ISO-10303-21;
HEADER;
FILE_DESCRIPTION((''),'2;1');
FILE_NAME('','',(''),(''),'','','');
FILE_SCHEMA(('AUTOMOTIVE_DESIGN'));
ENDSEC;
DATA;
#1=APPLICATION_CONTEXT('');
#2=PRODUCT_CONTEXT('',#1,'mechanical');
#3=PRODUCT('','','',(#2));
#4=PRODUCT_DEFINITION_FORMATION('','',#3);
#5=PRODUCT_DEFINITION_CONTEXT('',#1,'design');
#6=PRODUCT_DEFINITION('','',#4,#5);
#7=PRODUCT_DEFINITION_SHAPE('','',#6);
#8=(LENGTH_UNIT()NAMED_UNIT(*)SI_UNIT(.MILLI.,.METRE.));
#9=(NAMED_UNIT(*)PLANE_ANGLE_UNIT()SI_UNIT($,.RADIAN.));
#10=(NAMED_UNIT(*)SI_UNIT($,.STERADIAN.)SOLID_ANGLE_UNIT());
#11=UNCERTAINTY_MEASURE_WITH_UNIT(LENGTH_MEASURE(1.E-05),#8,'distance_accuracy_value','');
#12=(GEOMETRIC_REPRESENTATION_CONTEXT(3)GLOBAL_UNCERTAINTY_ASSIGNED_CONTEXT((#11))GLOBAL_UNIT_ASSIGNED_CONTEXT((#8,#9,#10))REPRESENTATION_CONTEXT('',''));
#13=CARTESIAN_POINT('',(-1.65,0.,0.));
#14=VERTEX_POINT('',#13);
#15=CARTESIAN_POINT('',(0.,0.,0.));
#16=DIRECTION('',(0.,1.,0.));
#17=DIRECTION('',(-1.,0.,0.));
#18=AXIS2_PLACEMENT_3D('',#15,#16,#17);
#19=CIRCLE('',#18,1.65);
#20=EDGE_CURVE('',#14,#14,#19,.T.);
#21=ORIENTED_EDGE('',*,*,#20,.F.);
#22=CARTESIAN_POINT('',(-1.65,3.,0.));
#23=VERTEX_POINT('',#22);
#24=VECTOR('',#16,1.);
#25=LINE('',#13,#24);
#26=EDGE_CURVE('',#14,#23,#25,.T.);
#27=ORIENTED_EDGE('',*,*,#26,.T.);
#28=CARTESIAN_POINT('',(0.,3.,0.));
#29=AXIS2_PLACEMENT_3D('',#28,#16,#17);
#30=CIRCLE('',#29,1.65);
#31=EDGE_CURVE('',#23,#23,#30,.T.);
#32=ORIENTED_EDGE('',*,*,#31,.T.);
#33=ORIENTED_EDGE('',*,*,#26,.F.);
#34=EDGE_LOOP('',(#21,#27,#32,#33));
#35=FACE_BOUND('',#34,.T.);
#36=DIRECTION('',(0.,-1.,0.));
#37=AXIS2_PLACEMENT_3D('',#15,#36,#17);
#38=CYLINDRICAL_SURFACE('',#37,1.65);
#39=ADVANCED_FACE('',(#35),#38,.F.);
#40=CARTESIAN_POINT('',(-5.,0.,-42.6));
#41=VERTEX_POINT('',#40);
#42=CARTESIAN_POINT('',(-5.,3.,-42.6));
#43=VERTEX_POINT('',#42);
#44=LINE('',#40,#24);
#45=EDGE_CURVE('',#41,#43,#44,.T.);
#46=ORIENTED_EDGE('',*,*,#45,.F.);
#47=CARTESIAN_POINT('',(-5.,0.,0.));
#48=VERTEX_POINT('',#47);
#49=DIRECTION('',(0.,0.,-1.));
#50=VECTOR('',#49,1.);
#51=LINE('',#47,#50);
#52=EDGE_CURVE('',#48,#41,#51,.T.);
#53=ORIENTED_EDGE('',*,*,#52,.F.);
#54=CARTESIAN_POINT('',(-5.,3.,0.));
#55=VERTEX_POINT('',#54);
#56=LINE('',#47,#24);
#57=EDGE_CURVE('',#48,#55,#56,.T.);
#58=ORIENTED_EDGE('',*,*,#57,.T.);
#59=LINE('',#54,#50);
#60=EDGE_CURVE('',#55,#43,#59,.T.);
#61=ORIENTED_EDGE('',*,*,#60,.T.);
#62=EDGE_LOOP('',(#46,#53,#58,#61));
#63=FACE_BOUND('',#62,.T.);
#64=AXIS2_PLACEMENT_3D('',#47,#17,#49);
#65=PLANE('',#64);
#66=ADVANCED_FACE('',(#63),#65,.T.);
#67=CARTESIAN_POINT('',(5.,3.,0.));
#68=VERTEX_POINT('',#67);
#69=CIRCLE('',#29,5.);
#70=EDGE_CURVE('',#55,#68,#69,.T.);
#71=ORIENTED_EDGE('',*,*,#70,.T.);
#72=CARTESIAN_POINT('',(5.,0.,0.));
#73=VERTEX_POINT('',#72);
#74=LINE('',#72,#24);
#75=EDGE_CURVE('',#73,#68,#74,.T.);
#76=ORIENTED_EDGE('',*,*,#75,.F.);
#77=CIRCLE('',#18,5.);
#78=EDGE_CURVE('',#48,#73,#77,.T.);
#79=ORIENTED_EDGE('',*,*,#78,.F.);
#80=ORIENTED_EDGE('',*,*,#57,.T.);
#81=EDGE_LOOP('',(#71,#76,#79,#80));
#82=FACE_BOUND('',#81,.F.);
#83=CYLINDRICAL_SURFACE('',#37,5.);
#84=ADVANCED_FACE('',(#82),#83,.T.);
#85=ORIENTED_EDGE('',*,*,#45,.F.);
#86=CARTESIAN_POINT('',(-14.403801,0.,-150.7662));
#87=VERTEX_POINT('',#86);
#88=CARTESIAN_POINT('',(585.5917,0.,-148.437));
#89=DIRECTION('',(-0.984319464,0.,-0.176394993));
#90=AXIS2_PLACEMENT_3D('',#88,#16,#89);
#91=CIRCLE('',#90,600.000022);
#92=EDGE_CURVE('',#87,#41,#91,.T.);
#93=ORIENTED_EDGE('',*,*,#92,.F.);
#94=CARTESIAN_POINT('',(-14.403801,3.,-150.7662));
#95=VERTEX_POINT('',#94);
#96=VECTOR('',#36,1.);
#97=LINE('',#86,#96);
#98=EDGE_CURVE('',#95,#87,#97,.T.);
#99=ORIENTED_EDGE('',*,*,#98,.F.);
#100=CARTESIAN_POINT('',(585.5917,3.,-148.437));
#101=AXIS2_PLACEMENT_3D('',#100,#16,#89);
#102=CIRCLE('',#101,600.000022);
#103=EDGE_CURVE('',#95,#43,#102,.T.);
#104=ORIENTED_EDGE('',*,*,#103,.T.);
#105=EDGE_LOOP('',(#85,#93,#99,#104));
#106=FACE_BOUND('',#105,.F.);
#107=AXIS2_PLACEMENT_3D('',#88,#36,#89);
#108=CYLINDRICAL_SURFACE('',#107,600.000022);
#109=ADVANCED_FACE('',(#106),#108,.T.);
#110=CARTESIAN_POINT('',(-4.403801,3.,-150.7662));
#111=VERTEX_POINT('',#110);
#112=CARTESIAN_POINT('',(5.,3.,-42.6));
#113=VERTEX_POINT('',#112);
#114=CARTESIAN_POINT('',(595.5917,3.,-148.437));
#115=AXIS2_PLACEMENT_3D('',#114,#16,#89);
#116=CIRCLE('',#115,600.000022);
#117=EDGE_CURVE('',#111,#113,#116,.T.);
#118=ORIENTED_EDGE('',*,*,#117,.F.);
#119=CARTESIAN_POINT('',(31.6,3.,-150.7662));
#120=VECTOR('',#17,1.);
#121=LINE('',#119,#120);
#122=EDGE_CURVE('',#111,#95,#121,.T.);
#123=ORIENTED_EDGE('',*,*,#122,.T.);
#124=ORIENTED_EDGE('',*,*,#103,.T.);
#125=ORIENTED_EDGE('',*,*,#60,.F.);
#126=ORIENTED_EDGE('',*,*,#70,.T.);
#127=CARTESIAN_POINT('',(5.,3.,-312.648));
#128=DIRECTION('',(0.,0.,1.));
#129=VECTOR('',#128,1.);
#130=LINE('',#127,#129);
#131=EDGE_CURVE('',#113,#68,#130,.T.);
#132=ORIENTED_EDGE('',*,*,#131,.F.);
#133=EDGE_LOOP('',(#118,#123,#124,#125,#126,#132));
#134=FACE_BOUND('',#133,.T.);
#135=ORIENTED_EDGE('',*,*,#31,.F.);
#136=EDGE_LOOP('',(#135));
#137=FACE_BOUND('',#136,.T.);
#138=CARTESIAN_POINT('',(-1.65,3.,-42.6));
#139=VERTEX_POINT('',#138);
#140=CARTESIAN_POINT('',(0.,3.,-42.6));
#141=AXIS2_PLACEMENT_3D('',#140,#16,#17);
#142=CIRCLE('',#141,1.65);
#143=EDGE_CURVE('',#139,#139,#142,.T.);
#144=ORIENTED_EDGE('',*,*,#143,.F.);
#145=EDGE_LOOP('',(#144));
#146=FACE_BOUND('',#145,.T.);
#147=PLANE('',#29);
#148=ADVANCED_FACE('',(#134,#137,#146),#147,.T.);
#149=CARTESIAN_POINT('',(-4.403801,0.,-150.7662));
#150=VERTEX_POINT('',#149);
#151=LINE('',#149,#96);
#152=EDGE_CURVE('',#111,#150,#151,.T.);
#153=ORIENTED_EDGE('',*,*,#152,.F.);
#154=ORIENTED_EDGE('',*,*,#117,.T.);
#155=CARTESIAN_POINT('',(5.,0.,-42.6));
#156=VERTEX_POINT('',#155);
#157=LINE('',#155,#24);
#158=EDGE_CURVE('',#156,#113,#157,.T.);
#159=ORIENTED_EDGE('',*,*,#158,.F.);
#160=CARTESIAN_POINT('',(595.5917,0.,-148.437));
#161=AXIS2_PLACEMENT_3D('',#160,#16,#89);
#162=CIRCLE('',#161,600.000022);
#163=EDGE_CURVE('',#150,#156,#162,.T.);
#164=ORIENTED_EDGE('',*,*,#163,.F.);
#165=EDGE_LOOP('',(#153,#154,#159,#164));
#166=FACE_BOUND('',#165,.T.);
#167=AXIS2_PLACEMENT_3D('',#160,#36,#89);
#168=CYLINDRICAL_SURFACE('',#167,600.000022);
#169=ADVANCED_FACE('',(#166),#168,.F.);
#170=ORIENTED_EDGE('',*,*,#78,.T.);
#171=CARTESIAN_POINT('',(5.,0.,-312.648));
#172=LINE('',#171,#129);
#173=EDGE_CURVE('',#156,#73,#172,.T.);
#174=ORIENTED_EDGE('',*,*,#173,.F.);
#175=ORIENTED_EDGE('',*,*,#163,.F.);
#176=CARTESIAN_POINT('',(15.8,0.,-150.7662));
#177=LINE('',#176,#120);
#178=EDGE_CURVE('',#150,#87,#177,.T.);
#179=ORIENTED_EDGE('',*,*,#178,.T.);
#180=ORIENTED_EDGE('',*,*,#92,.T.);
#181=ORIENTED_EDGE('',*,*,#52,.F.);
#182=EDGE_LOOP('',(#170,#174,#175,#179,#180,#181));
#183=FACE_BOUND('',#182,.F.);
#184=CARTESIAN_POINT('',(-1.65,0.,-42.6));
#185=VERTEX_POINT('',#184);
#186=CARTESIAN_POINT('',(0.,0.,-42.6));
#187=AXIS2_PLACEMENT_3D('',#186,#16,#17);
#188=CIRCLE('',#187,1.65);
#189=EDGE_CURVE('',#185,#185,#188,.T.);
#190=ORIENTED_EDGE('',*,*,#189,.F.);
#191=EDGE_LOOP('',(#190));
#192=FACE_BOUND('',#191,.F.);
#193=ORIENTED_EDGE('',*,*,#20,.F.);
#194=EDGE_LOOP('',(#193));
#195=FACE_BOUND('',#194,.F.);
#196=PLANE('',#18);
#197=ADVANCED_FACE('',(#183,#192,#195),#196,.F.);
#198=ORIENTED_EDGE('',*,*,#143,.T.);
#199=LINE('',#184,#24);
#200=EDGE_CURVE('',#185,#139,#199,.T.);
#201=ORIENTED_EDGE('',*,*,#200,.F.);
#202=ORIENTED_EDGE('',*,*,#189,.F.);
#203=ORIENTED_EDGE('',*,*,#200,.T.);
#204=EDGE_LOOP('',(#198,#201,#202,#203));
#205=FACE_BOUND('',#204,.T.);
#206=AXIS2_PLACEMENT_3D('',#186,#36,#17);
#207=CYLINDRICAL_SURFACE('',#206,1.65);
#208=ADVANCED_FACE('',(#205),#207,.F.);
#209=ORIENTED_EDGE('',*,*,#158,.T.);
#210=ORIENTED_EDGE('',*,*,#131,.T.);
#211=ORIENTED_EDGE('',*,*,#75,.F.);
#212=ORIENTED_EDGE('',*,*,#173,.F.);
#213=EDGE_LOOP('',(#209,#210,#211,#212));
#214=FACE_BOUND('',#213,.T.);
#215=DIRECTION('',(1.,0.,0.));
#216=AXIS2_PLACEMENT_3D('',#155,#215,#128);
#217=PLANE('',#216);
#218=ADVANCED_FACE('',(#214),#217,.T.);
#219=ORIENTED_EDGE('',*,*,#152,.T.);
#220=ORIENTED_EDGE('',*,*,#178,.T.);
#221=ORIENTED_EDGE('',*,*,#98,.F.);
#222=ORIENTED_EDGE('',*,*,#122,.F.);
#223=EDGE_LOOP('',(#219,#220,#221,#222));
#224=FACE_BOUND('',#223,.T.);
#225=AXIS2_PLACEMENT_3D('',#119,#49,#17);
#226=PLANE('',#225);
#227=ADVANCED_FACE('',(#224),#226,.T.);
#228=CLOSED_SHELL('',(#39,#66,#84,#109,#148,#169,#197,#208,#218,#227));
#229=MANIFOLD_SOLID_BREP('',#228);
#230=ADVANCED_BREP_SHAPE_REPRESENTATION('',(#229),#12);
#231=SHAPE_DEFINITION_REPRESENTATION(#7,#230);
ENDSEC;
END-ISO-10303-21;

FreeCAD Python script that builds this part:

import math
import FreeCAD as App
import Part
import Sketcher

doc = App.newDocument("Part")
params = doc.addObject("Spreadsheet::Sheet", "Params")
for row, (alias, value) in enumerate([
    ("sketch1_radius", "5 mm"),
    ("sketch1_radius2", "600 mm"),
    ("sketch1_diameter", "3.3 mm"),
    ("sketch1_height", "42.6 mm"),
    ("pad1_length", "3 mm"),
    ("pocket1_length", "10 mm"),
], start=1):
    params.set(f"A{row}", alias)
    params.set(f"B{row}", "=" + value)
    params.setAlias(f"B{row}", alias)

body = doc.addObject("PartDesign::Body", "Body")

# Sketch on XZ plane
sketch1 = body.newObject("Sketcher::SketchObject", "Sketch")
sketch1.AttachmentSupport = (doc.getObject("XZ_Plane"), [""])
sketch1.MapMode = "FlatFace"
sketch1.addGeometry([
    Part.LineSegment(App.Vector(-5, -42.6, 0), App.Vector(-5, 0, 0)),  # 0
    Part.ArcOfCircle(Part.Circle(App.Vector(0, 0, 0), App.Vector(0, 0, 1), 5), math.radians(0), math.radians(180)),  # 1
    Part.LineSegment(App.Vector(5, 0, 0), App.Vector(5, -42.6, 0)),  # 2
    Part.ArcOfCircle(Part.Circle(App.Vector(595.6, -148.4, 0), App.Vector(0, 0, 1), 600), math.radians(170), math.radians(190)),  # 3
    Part.LineSegment(App.Vector(5, -254.3, 0), App.Vector(5, -312.6, 0)),  # 4
    Part.ArcOfCircle(Part.Circle(App.Vector(0, -312.6, 0), App.Vector(0, 0, 1), 5), math.radians(180), math.radians(360)),  # 5
    Part.LineSegment(App.Vector(-5, -312.6, 0), App.Vector(-5, -254.3, 0)),  # 6
    Part.ArcOfCircle(Part.Circle(App.Vector(585.6, -148.4, 0), App.Vector(0, 0, 1), 600), math.radians(170), math.radians(190)),  # 7
    Part.Circle(App.Vector(0, -312.6, 0), App.Vector(0, 0, 1), 1.6),  # 8
    Part.Circle(App.Vector(0, -254.3, 0), App.Vector(0, 0, 1), 1.6),  # 9
    Part.Circle(App.Vector(0, -42.6, 0), App.Vector(0, 0, 1), 1.6),  # 10
    Part.Circle(App.Vector(0, 0, 0), App.Vector(0, 0, 1), 1.6),  # 11
], False)
sketch1.addConstraint([
    Sketcher.Constraint("Tangent", 0, 2, 1, 2),
    Sketcher.Constraint("Tangent", 1, 1, 2, 1),
    Sketcher.Constraint("Coincident", 2, 2, 3, 1),
    Sketcher.Constraint("Coincident", 3, 2, 4, 1),
    Sketcher.Constraint("Tangent", 4, 2, 5, 2),
    Sketcher.Constraint("Tangent", 5, 1, 6, 1),
    Sketcher.Constraint("Coincident", 6, 2, 7, 2),
    Sketcher.Constraint("Coincident", 7, 1, 0, 1),
    Sketcher.Constraint("Vertical", 0),
    Sketcher.Constraint("Vertical", 2),
    Sketcher.Constraint("Vertical", 4),
    Sketcher.Constraint("Vertical", 6),
    Sketcher.Constraint("Coincident", 1, 3, -1, 1),
    Sketcher.Constraint("Coincident", 11, 3, -1, 1),
    Sketcher.Constraint("Coincident", 8, 3, 5, 3),
    Sketcher.Constraint("Equal", 1, 5),
    Sketcher.Constraint("Equal", 3, 7),
    Sketcher.Constraint("Equal", 8, 9),
    Sketcher.Constraint("Equal", 9, 10),
    Sketcher.Constraint("Equal", 10, 11),
    Sketcher.Constraint("Symmetric", 3, 2, 6, 2, -2),
    Sketcher.Constraint("PointOnObject", 9, 3, -2),
    Sketcher.Constraint("PointOnObject", 10, 3, -2),
    Sketcher.Constraint("Horizontal", 3, 3, 7, 3),
    Sketcher.Constraint("Horizontal", 10, 3, 2, 2),
    Sketcher.Constraint("Horizontal", 9, 3, 3, 2),
    Sketcher.Constraint("Radius", 1, 5.0),
    Sketcher.Constraint("Radius", 3, 600.0),
    Sketcher.Constraint("Diameter", 8, 3.3),
    Sketcher.Constraint("DistanceY", 0, 1, 0, 2, 42.6),
    Sketcher.Constraint("DistanceY", 5, 3, -1, 1, 312.648),
    Sketcher.Constraint("DistanceY", 9, 3, -1, 1, 254.274),
])
sketch1.setExpression("Constraints[26]", "Params.sketch1_radius")
sketch1.setExpression("Constraints[27]", "Params.sketch1_radius2")
sketch1.setExpression("Constraints[28]", "Params.sketch1_diameter")
sketch1.setExpression("Constraints[29]", "Params.sketch1_height")
pad1 = body.newObject("PartDesign::Pad", "Pad")
pad1.Profile = sketch1
pad1.setExpression("Length", "Params.pad1_length")
pad1.Reversed = True

# Sketch on XZ plane
sketch2 = body.newObject("Sketcher::SketchObject", "Sketch001")
sketch2.AttachmentSupport = (doc.getObject("XZ_Plane"), [""])
sketch2.MapMode = "FlatFace"
sketch2.AttachmentOffset = App.Placement(App.Vector(0, 0, -3), App.Rotation())
sketch2.addGeometry([
    Part.LineSegment(App.Vector(32, -331, 0), App.Vector(-31, -331, 0)),
    Part.LineSegment(App.Vector(-31, -331, 0), App.Vector(-31, -151, 0)),
    Part.LineSegment(App.Vector(-31, -151, 0), App.Vector(32, -151, 0)),
    Part.LineSegment(App.Vector(32, -151, 0), App.Vector(32, -331, 0)),
], False)
sketch2.addConstraint([
    Sketcher.Constraint("Coincident", 0, 2, 1, 1),
    Sketcher.Constraint("Coincident", 1, 2, 2, 1),
    Sketcher.Constraint("Coincident", 2, 2, 3, 1),
    Sketcher.Constraint("Coincident", 3, 2, 0, 1),
    Sketcher.Constraint("Horizontal", 0),
    Sketcher.Constraint("Vertical", 1),
    Sketcher.Constraint("Horizontal", 2),
    Sketcher.Constraint("Vertical", 3),
    Sketcher.Constraint("DistanceX", -1, 1, 2, 2, 31.6),
    Sketcher.Constraint("DistanceX", 0, 2, 0, 1, 62.717),
    Sketcher.Constraint("DistanceY", 1, 1, 1, 2, 180.3116),
    Sketcher.Constraint("DistanceY", 0, 2, -1, 1, 331.0778),
])
pocket1 = body.newObject("PartDesign::Pocket", "Pocket")
pocket1.Profile = sketch2
pocket1.setExpression("Length", "Params.pocket1_length")
pocket1.Reversed = True

doc.recompute()
